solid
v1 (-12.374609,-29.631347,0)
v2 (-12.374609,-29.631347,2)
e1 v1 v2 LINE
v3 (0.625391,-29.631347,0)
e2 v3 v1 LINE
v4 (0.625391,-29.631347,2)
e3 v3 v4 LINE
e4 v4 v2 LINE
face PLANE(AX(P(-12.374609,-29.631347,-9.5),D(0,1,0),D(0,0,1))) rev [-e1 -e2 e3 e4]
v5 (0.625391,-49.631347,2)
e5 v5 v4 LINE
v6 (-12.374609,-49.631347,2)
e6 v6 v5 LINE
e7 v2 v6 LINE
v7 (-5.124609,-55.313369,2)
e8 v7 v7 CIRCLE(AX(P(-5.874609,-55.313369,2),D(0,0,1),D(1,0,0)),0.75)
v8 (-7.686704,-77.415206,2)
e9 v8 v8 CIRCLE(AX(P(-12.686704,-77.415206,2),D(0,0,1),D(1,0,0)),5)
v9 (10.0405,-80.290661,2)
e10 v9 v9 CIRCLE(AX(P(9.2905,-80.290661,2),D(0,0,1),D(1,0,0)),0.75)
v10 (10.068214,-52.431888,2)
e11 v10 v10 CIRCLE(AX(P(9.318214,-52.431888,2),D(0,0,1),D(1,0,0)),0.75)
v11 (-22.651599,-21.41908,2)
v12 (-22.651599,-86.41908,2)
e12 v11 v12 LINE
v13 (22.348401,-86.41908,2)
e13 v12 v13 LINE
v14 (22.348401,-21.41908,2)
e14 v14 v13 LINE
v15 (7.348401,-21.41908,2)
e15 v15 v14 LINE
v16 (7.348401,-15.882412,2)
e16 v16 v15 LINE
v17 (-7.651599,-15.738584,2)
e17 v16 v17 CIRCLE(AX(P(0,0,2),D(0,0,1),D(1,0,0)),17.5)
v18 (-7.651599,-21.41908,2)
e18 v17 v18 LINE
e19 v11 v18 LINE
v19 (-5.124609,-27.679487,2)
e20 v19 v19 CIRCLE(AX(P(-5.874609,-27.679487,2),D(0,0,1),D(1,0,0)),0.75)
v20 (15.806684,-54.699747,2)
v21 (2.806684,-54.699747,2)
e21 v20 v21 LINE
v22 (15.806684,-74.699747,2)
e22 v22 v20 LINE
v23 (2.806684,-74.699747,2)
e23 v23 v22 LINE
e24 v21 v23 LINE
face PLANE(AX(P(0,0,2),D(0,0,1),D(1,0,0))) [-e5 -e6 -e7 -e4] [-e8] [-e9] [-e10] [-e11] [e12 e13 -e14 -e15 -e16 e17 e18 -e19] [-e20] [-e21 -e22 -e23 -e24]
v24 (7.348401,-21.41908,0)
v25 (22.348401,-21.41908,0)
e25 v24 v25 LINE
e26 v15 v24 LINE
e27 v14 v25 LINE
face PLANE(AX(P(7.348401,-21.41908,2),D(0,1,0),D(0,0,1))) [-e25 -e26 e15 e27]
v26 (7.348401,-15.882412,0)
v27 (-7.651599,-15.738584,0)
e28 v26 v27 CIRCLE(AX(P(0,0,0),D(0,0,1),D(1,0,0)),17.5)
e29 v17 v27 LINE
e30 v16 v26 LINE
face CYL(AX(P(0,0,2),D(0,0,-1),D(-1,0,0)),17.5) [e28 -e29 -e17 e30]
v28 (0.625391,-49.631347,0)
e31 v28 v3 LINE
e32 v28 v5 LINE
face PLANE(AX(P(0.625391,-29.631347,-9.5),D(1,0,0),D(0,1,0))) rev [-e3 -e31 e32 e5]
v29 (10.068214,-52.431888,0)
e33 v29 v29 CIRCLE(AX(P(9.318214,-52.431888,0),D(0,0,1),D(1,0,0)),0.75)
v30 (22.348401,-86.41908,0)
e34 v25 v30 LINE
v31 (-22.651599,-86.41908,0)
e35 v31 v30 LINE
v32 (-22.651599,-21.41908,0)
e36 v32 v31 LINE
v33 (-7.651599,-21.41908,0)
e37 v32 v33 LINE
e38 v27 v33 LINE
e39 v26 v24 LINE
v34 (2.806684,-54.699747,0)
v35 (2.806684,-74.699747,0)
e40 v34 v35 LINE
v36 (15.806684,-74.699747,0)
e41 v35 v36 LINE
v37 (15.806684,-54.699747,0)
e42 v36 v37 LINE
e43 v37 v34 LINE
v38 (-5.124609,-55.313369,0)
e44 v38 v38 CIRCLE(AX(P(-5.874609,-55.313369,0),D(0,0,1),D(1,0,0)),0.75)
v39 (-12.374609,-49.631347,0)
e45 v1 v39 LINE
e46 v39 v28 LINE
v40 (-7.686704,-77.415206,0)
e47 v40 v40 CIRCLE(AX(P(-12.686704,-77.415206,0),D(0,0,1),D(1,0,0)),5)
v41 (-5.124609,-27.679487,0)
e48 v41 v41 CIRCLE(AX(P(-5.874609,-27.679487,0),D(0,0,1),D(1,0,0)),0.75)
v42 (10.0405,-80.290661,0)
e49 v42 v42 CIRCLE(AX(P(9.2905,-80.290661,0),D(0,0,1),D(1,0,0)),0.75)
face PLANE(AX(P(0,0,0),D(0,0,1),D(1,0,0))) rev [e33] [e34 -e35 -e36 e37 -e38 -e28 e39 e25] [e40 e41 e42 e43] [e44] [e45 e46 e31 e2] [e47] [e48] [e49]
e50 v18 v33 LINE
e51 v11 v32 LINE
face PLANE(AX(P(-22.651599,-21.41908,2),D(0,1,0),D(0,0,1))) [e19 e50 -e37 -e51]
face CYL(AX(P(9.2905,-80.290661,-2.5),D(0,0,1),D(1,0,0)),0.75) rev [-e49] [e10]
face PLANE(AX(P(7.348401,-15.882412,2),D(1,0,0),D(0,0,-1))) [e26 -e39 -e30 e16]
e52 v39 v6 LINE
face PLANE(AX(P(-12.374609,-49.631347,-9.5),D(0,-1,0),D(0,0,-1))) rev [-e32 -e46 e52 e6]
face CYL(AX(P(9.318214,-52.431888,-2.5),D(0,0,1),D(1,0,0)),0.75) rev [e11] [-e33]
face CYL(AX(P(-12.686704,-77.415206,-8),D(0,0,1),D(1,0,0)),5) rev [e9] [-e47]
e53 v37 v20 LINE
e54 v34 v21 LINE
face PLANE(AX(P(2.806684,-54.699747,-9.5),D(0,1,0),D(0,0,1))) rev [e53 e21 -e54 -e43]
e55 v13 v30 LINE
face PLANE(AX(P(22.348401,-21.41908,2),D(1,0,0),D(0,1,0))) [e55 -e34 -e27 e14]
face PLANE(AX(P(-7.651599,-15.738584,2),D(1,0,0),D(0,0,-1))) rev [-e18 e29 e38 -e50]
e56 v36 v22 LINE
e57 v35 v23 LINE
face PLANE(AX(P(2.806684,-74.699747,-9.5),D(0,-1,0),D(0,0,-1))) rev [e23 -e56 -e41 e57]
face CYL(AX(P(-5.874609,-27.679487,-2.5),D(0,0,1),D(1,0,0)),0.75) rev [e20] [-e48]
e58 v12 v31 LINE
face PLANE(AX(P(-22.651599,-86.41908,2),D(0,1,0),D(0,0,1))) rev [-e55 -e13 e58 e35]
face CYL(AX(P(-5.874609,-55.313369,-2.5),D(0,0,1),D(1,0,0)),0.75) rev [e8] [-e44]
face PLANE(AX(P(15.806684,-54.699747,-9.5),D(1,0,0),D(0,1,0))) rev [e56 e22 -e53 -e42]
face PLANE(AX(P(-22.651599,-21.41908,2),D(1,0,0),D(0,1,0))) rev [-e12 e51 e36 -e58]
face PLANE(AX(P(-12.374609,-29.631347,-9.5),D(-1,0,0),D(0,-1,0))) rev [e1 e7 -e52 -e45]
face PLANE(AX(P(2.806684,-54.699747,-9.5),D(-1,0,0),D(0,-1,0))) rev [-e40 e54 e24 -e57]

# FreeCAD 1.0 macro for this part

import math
import FreeCAD as App
import Part
import Sketcher
from FreeCAD import Vector
Q = App.Units.Quantity


def add_polygon(sketch, points):
    """Adds a closed chain of lines whose ends are joined by coincident constraints."""
    first, n = sketch.GeometryCount, len(points)
    for a, b in zip(points, points[1:] + points[:1]):
        sketch.addGeometry(Part.LineSegment(App.Vector(*a, 0), App.Vector(*b, 0)), False)
    for i in range(n):
        sketch.addConstraint(Sketcher.Constraint("Coincident", first + i, 2, first + (i + 1) % n, 1))

doc = App.newDocument("Part")
params = doc.addObject("Spreadsheet::Sheet", "Params")
for row, (alias, value) in enumerate([
    ("sketch1_radius", "17.5 mm"),
    ("sketch1_width", "15 mm"),
    ("sketch1_width2", "45 mm"),
    ("sketch1_height", "65 mm"),
    ("pad1_length", "2 mm"),
    ("sketch2_width", "13 mm"),
    ("sketch2_height", "20 mm"),
    ("pocket1_length", "11.5 mm"),
    ("sketch3_diameter", "1.5 mm"),
    ("pocket2_length", "4.5 mm"),
    ("sketch4_diameter", "10 mm"),
    ("pocket3_length", "10 mm"),
], start=1):
    params.set(f"A{row}", alias)
    params.set(f"B{row}", "=" + value)
    params.setAlias(f"B{row}", alias)

body = doc.addObject("PartDesign::Body", "Body")

sketch1 = body.newObject("Sketcher::SketchObject", "Sketch")
sketch1.AttachmentSupport = (doc.getObject("XY_Plane"), [""])
sketch1.MapMode = "FlatFace"
sketch1.addGeometry([
    Part.LineSegment(Vector(-8, -16, 0), Vector(-8, -21, 0)),
    Part.LineSegment(Vector(-8, -21, 0), Vector(-23, -21, 0)),
    Part.LineSegment(Vector(-23, -21, 0), Vector(-23, -86, 0)),
    Part.LineSegment(Vector(-23, -86, 0), Vector(22, -86, 0)),
    Part.LineSegment(Vector(22, -86, 0), Vector(22, -21, 0)),
    Part.LineSegment(Vector(22, -21, 0), Vector(7, -21, 0)),
    Part.LineSegment(Vector(7, -21, 0), Vector(7, -16, 0)),
    Part.ArcOfCircle(Part.Circle(Vector(0, 0, 0), Vector(0, 0, 1), 18), math.radians(-65), math.radians(244)),
], False)
sketch1.addConstraint([
    Sketcher.Constraint("Coincident", 0, 2, 1, 1),
    Sketcher.Constraint("Coincident", 1, 2, 2, 1),
    Sketcher.Constraint("Coincident", 2, 2, 3, 1),
    Sketcher.Constraint("Coincident", 3, 2, 4, 1),
    Sketcher.Constraint("Coincident", 4, 2, 5, 1),
    Sketcher.Constraint("Coincident", 5, 2, 6, 1),
    Sketcher.Constraint("Coincident", 6, 2, 7, 1),
    Sketcher.Constraint("Coincident", 7, 2, 0, 1),
    Sketcher.Constraint("Vertical", 0),
    Sketcher.Constraint("Horizontal", 1),
    Sketcher.Constraint("Vertical", 2),
    Sketcher.Constraint("Horizontal", 3),
    Sketcher.Constraint("Vertical", 4),
    Sketcher.Constraint("Horizontal", 5),
    Sketcher.Constraint("Vertical", 6),
    Sketcher.Constraint("Coincident", 7, 3, -1, 1),
    Sketcher.Constraint("Horizontal", 1, 2, 4, 2),
    Sketcher.Constraint("Equal", 1, 5),
    Sketcher.Constraint("Radius", 7, Q("17.5 mm")),
    Sketcher.Constraint("DistanceX", 1, 2, 1, 1, Q("15 mm")),
    Sketcher.Constraint("DistanceX", 3, 1, 3, 2, Q("45 mm")),
    Sketcher.Constraint("DistanceY", 2, 2, 2, 1, Q("65 mm")),
    Sketcher.Constraint("DistanceY", 6, 1, 6, 2, Q("5.536668 mm")),
    Sketcher.Constraint("DistanceX", 0, 2, -1, 1, Q("7.651599 mm")),
])
sketch1.setExpression("Constraints[18]", "Params.sketch1_radius")
sketch1.setExpression("Constraints[19]", "Params.sketch1_width")
sketch1.setExpression("Constraints[20]", "Params.sketch1_width2")
sketch1.setExpression("Constraints[21]", "Params.sketch1_height")
pad1 = body.newObject("PartDesign::Pad", "Pad")
pad1.Profile = sketch1
pad1.setExpression("Length", "Params.pad1_length")

sketch2 = body.newObject("Sketcher::SketchObject", "Sketch001")
sketch2.AttachmentSupport = (doc.getObject("XY_Plane"), [""])
sketch2.MapMode = "FlatFace"
sketch2.AttachmentOffset = App.Placement(Vector(0, 0, 2), App.Rotation())
add_polygon(sketch2, [(3, -55), (3, -75), (16, -75), (16, -55)])
add_polygon(sketch2, [(-12, -30), (-12, -50), (1, -50), (1, -30)])
sketch2.addConstraint([
    Sketcher.Constraint("Vertical", 0),
    Sketcher.Constraint("Horizontal", 1),
    Sketcher.Constraint("Vertical", 2),
    Sketcher.Constraint("Horizontal", 3),
    Sketcher.Constraint("Vertical", 4),
    Sketcher.Constraint("Horizontal", 5),
    Sketcher.Constraint("Vertical", 6),
    Sketcher.Constraint("Horizontal", 7),
    Sketcher.Constraint("Equal", 3, 5),
    Sketcher.Constraint("Equal", 2, 4),
    Sketcher.Constraint("DistanceX", 1, 1, 1, 2, Q("13 mm")),
    Sketcher.Constraint("DistanceY", 0, 2, 0, 1, Q("20 mm")),
    Sketcher.Constraint("DistanceY", 3, 2, 4, 2, Q("5.0684 mm")),
    Sketcher.Constraint("DistanceX", 4, 2, -1, 1, Q("12.374609 mm")),
    Sketcher.Constraint("DistanceX", -1, 1, 0, 2, Q("2.806684 mm")),
    Sketcher.Constraint("DistanceY", 0, 2, -1, 1, Q("74.699747 mm")),
])
sketch2.setExpression("Constraints[18]", "Params.sketch2_width")
sketch2.setExpression("Constraints[19]", "Params.sketch2_height")
pocket1 = body.newObject("PartDesign::Pocket", "Pocket")
pocket1.Profile = sketch2
pocket1.setExpression("Length", "Params.pocket1_length")

sketch3 = body.newObject("Sketcher::SketchObject", "Sketch002")
sketch3.AttachmentSupport = (doc.getObject("XY_Plane"), [""])
sketch3.MapMode = "FlatFace"
sketch3.AttachmentOffset = App.Placement(Vector(0, 0, 2), App.Rotation())
sketch3.addGeometry([
    Part.Circle(Vector(-5.9, -27.7, 0), Vector(0, 0, 1), 0.8),
    Part.Circle(Vector(-5.9, -55.3, 0), Vector(0, 0, 1), 0.8),
    Part.Circle(Vector(9.3, -52.4, 0), Vector(0, 0, 1), 0.8),
    Part.Circle(Vector(9.3, -80.3, 0), Vector(0, 0, 1), 0.8),
], False)
sketch3.addConstraint([
    Sketcher.Constraint("Equal", 0, 1),
    Sketcher.Constraint("Equal", 1, 2),
    Sketcher.Constraint("Equal", 2, 3),
    Sketcher.Constraint("Vertical", 0, 3, 1, 3),
    Sketcher.Constraint("Diameter", 0, Q("1.5 mm")),
    Sketcher.Constraint("DistanceX", -1, 1, 3, 3, Q("9.2905 mm")),
    Sketcher.Constraint("DistanceY", 2, 3, 0, 3, Q("24.752401 mm")),
    Sketcher.Constraint("DistanceX", 0, 3, -1, 1, Q("5.874609 mm")),
    Sketcher.Constraint("DistanceY", 1, 3, -1, 1, Q("55.313369 mm")),
    Sketcher.Constraint("DistanceY", 3, 3, -1, 1, Q("80.290661 mm")),
    Sketcher.Constraint("DistanceY", 1, 3, 2, 3, Q("2.881482 mm")),
    Sketcher.Constraint("DistanceX", -1, 1, 2, 3, Q("9.318214 mm")),
])
sketch3.setExpression("Constraints[4]", "Params.sketch3_diameter")
pocket2 = body.newObject("PartDesign::Pocket", "Pocket001")
pocket2.Profile = sketch3
pocket2.setExpression("Length", "Params.pocket2_length")

sketch4 = body.newObject("Sketcher::SketchObject", "Sketch003")
sketch4.AttachmentSupport = (doc.getObject("XY_Plane"), [""])
sketch4.MapMode = "FlatFace"
sketch4.AttachmentOffset = App.Placement(Vector(0, 0, 2), App.Rotation())
sketch4.addGeometry(Part.Circle(Vector(-13, -77, 0), Vector(0, 0, 1), 5), False)
sketch4.addConstraint([
    Sketcher.Constraint("Diameter", 0, Q("10 mm")),
    Sketcher.Constraint("DistanceX", 0, 3, -1, 1, Q("12.686704 mm")),
    Sketcher.Constraint("DistanceY", 0, 3, -1, 1, Q("77.415206 mm")),
])
sketch4.setExpression("Constraints[0]", "Params.sketch4_diameter")
pocket3 = body.newObject("PartDesign::Pocket", "Pocket002")
pocket3.Profile = sketch4
pocket3.setExpression("Length", "Params.pocket3_length")

doc.recompute()
